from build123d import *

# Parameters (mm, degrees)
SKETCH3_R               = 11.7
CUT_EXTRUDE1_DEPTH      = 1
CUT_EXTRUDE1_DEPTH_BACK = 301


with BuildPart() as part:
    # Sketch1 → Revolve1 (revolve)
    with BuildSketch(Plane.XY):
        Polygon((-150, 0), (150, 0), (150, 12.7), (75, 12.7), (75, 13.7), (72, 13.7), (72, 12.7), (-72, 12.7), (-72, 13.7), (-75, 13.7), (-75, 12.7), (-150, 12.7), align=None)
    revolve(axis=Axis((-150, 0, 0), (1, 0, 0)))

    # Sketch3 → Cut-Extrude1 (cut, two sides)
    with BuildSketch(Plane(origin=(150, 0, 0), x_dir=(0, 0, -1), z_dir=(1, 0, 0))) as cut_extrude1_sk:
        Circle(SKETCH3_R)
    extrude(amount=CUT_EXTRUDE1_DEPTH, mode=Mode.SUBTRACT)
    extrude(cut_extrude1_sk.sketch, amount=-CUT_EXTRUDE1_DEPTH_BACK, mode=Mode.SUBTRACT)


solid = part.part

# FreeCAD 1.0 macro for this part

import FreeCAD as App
import Part
import Sketcher

V = App.Vector
Q = App.Units.Quantity

doc = App.newDocument("Part")
body = doc.addObject("PartDesign::Body", "Body")

# Sketch on XY plane
sketch1 = body.newObject("Sketcher::SketchObject", "Sketch")
sketch1.AttachmentSupport = (doc.getObject("XY_Plane"), [""])
sketch1.MapMode = "FlatFace"
sketch1.addGeometry(Part.LineSegment(V(-150, 0, 0), V(150, 0, 0)), False)
sketch1.addGeometry(Part.LineSegment(V(150, 0, 0), V(150, 12.7, 0)), False)
sketch1.addGeometry(Part.LineSegment(V(150, 12.7, 0), V(75, 12.7, 0)), False)
sketch1.addGeometry(Part.LineSegment(V(75, 12.7, 0), V(75, 13.7, 0)), False)
sketch1.addGeometry(Part.LineSegment(V(75, 13.7, 0), V(72, 13.7, 0)), False)
sketch1.addGeometry(Part.LineSegment(V(72, 13.7, 0), V(72, 12.7, 0)), False)
sketch1.addGeometry(Part.LineSegment(V(72, 12.7, 0), V(-72, 12.7, 0)), False)
sketch1.addGeometry(Part.LineSegment(V(-72, 12.7, 0), V(-72, 13.7, 0)), False)
sketch1.addGeometry(Part.LineSegment(V(-72, 13.7, 0), V(-75, 13.7, 0)), False)
sketch1.addGeometry(Part.LineSegment(V(-75, 13.7, 0), V(-75, 12.7, 0)), False)
sketch1.addGeometry(Part.LineSegment(V(-75, 12.7, 0), V(-150, 12.7, 0)), False)
sketch1.addGeometry(Part.LineSegment(V(-150, 12.7, 0), V(-150, 0, 0)), False)
sketch1.addConstraint(Sketcher.Constraint("Coincident", 0, 2, 1, 1))
sketch1.addConstraint(Sketcher.Constraint("Coincident", 1, 2, 2, 1))
sketch1.addConstraint(Sketcher.Constraint("Coincident", 2, 2, 3, 1))
sketch1.addConstraint(Sketcher.Constraint("Coincident", 3, 2, 4, 1))
sketch1.addConstraint(Sketcher.Constraint("Coincident", 4, 2, 5, 1))
sketch1.addConstraint(Sketcher.Constraint("Coincident", 5, 2, 6, 1))
sketch1.addConstraint(Sketcher.Constraint("Coincident", 6, 2, 7, 1))
sketch1.addConstraint(Sketcher.Constraint("Coincident", 7, 2, 8, 1))
sketch1.addConstraint(Sketcher.Constraint("Coincident", 8, 2, 9, 1))
sketch1.addConstraint(Sketcher.Constraint("Coincident", 9, 2, 10, 1))
sketch1.addConstraint(Sketcher.Constraint("Coincident", 10, 2, 11, 1))
sketch1.addConstraint(Sketcher.Constraint("Coincident", 11, 2, 0, 1))
sketch1.addConstraint(Sketcher.Constraint("Horizontal", 0))
sketch1.addConstraint(Sketcher.Constraint("Vertical", 1))
sketch1.addConstraint(Sketcher.Constraint("Horizontal", 2))
sketch1.addConstraint(Sketcher.Constraint("Vertical", 3))
sketch1.addConstraint(Sketcher.Constraint("Horizontal", 4))
sketch1.addConstraint(Sketcher.Constraint("Vertical", 5))
sketch1.addConstraint(Sketcher.Constraint("Horizontal", 6))
sketch1.addConstraint(Sketcher.Constraint("Vertical", 7))
sketch1.addConstraint(Sketcher.Constraint("Horizontal", 8))
sketch1.addConstraint(Sketcher.Constraint("Vertical", 9))
sketch1.addConstraint(Sketcher.Constraint("Horizontal", 10))
sketch1.addConstraint(Sketcher.Constraint("Vertical", 11))
sketch1.addConstraint(Sketcher.Constraint("Symmetric", 0, 2, 11, 2, -1, 1))
sketch1.addConstraint(Sketcher.Constraint("Symmetric", 4, 2, 7, 2, -2))
sketch1.addConstraint(Sketcher.Constraint("Symmetric", 2, 2, 9, 2, -2))
sketch1.addConstraint(Sketcher.Constraint("Horizontal", 2, 2, 5, 2))
sketch1.addConstraint(Sketcher.Constraint("DistanceX", 0, 1, 0, 2, Q("300 mm")))
sketch1.addConstraint(Sketcher.Constraint("DistanceX", 2, 2, 2, 1, Q("75 mm")))
sketch1.addConstraint(Sketcher.Constraint("DistanceX", 4, 2, 4, 1, Q("3 mm")))
sketch1.addConstraint(Sketcher.Constraint("DistanceY", 3, 1, 3, 2, Q("1 mm")))
sketch1.addConstraint(Sketcher.Constraint("DistanceY", 1, 1, 1, 2, Q("12.7 mm")))
revolution = body.newObject("PartDesign::Revolution", "Revolution")
revolution.Profile = sketch1
revolution.ReferenceAxis = (sketch1, ["H_Axis"])
revolution.Angle = 360

# Sketch on YZ plane
sketch2 = body.newObject("Sketcher::SketchObject", "Sketch001")
sketch2.AttachmentSupport = (doc.getObject("YZ_Plane"), [""])
sketch2.MapMode = "FlatFace"
sketch2.AttachmentOffset = App.Placement(V(0, 0, 150), App.Rotation())
sketch2.addGeometry(Part.Circle(V(0, 0, 0), V(0, 0, 1), 12), False)
sketch2.addConstraint(Sketcher.Constraint("Coincident", 0, 3, -1, 1))
sketch2.addConstraint(Sketcher.Constraint("Diameter", 0, Q("23.4 mm")))
pocket1 = body.newObject("PartDesign::Pocket", "Pocket")
pocket1.Profile = sketch2
pocket1.Type = "ThroughAll"
pocket1.Midplane = True

doc.recompute()
